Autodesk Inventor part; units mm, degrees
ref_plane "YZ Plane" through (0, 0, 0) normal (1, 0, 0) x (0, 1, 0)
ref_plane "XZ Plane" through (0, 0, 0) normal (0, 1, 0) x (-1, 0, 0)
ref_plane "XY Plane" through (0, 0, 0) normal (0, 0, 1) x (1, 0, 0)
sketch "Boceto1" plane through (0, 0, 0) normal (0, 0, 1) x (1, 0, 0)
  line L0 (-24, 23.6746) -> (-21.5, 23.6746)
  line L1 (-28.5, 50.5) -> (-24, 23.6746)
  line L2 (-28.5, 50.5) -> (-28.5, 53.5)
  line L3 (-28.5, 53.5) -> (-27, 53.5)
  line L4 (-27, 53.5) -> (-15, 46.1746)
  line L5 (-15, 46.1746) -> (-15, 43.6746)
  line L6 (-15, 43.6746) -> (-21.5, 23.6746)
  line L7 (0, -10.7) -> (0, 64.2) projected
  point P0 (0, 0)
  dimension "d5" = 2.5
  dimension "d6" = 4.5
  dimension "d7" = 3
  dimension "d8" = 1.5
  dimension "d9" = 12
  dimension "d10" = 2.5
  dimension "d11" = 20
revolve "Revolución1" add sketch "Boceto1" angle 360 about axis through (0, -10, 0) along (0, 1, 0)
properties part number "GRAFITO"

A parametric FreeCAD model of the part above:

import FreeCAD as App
import Part
import Sketcher

V = App.Vector
Q = App.Units.Quantity

doc = App.newDocument("Part")
body = doc.addObject("PartDesign::Body", "Body")

sketch1 = doc.addObject("Sketcher::SketchObject", "Sketch")
body.addObject(sketch1)
sketch1.AttachmentSupport = (doc.XY_Plane, [""])
sketch1.MapMode = "FlatFace"
sketch1.addGeometry(Part.LineSegment(V(-28.5, 50.5, 0), V(-24, 23.6746, 0)), False)
sketch1.addGeometry(Part.LineSegment(V(-24, 23.6746, 0), V(-21.5, 23.6746, 0)), False)
sketch1.addGeometry(Part.LineSegment(V(-21.5, 23.6746, 0), V(-15, 43.6746, 0)), False)
sketch1.addGeometry(Part.LineSegment(V(-15, 43.6746, 0), V(-15, 46.1746, 0)), False)
sketch1.addGeometry(Part.LineSegment(V(-15, 46.1746, 0), V(-27, 53.5, 0)), False)
sketch1.addGeometry(Part.LineSegment(V(-27, 53.5, 0), V(-28.5, 53.5, 0)), False)
sketch1.addGeometry(Part.LineSegment(V(-28.5, 53.5, 0), V(-28.5, 50.5, 0)), False)
sketch1.addConstraint(Sketcher.Constraint("Coincident", 0, 2, 1, 1))
sketch1.addConstraint(Sketcher.Constraint("Coincident", 1, 2, 2, 1))
sketch1.addConstraint(Sketcher.Constraint("Coincident", 2, 2, 3, 1))
sketch1.addConstraint(Sketcher.Constraint("Coincident", 3, 2, 4, 1))
sketch1.addConstraint(Sketcher.Constraint("Coincident", 4, 2, 5, 1))
sketch1.addConstraint(Sketcher.Constraint("Coincident", 5, 2, 6, 1))
sketch1.addConstraint(Sketcher.Constraint("Coincident", 6, 2, 0, 1))
sketch1.addConstraint(Sketcher.Constraint("Horizontal", 1))
sketch1.addConstraint(Sketcher.Constraint("Vertical", 3))
sketch1.addConstraint(Sketcher.Constraint("Horizontal", 5))
sketch1.addConstraint(Sketcher.Constraint("Vertical", 6))
sketch1.addConstraint(Sketcher.Constraint("Equal", 1, 3))
sketch1.addConstraint(Sketcher.Constraint("DistanceY", 6, 2, 6, 1, Q("3 mm")))
sketch1.addConstraint(Sketcher.Constraint("DistanceX", 1, 1, 1, 2, Q("2.5 mm")))
sketch1.addConstraint(Sketcher.Constraint("DistanceX", 5, 2, 5, 1, Q("1.5 mm")))
sketch1.addConstraint(Sketcher.Constraint("DistanceY", 1, 2, 2, 2, Q("20 mm")))
sketch1.addConstraint(Sketcher.Constraint("DistanceX", 4, 2, 3, 2, Q("12 mm")))
sketch1.addConstraint(Sketcher.Constraint("DistanceX", 4, 2, 0, 2, Q("3 mm")))
sketch1.addConstraint(Sketcher.Constraint("DistanceX", 0, 2, -1, 1, Q("24 mm")))
sketch1.addConstraint(Sketcher.Constraint("DistanceY", -1, 1, 4, 2, Q("53.5 mm")))
sketch1.addConstraint(Sketcher.Constraint("Distance", 0, Q("27.2002 mm")))
revolution = doc.addObject("PartDesign::Revolution", "Revolution")
body.addObject(revolution)
revolution.Profile = sketch1
revolution.ReferenceAxis = (sketch1, ["V_Axis"])
revolution.Angle = 360

doc.recompute()
